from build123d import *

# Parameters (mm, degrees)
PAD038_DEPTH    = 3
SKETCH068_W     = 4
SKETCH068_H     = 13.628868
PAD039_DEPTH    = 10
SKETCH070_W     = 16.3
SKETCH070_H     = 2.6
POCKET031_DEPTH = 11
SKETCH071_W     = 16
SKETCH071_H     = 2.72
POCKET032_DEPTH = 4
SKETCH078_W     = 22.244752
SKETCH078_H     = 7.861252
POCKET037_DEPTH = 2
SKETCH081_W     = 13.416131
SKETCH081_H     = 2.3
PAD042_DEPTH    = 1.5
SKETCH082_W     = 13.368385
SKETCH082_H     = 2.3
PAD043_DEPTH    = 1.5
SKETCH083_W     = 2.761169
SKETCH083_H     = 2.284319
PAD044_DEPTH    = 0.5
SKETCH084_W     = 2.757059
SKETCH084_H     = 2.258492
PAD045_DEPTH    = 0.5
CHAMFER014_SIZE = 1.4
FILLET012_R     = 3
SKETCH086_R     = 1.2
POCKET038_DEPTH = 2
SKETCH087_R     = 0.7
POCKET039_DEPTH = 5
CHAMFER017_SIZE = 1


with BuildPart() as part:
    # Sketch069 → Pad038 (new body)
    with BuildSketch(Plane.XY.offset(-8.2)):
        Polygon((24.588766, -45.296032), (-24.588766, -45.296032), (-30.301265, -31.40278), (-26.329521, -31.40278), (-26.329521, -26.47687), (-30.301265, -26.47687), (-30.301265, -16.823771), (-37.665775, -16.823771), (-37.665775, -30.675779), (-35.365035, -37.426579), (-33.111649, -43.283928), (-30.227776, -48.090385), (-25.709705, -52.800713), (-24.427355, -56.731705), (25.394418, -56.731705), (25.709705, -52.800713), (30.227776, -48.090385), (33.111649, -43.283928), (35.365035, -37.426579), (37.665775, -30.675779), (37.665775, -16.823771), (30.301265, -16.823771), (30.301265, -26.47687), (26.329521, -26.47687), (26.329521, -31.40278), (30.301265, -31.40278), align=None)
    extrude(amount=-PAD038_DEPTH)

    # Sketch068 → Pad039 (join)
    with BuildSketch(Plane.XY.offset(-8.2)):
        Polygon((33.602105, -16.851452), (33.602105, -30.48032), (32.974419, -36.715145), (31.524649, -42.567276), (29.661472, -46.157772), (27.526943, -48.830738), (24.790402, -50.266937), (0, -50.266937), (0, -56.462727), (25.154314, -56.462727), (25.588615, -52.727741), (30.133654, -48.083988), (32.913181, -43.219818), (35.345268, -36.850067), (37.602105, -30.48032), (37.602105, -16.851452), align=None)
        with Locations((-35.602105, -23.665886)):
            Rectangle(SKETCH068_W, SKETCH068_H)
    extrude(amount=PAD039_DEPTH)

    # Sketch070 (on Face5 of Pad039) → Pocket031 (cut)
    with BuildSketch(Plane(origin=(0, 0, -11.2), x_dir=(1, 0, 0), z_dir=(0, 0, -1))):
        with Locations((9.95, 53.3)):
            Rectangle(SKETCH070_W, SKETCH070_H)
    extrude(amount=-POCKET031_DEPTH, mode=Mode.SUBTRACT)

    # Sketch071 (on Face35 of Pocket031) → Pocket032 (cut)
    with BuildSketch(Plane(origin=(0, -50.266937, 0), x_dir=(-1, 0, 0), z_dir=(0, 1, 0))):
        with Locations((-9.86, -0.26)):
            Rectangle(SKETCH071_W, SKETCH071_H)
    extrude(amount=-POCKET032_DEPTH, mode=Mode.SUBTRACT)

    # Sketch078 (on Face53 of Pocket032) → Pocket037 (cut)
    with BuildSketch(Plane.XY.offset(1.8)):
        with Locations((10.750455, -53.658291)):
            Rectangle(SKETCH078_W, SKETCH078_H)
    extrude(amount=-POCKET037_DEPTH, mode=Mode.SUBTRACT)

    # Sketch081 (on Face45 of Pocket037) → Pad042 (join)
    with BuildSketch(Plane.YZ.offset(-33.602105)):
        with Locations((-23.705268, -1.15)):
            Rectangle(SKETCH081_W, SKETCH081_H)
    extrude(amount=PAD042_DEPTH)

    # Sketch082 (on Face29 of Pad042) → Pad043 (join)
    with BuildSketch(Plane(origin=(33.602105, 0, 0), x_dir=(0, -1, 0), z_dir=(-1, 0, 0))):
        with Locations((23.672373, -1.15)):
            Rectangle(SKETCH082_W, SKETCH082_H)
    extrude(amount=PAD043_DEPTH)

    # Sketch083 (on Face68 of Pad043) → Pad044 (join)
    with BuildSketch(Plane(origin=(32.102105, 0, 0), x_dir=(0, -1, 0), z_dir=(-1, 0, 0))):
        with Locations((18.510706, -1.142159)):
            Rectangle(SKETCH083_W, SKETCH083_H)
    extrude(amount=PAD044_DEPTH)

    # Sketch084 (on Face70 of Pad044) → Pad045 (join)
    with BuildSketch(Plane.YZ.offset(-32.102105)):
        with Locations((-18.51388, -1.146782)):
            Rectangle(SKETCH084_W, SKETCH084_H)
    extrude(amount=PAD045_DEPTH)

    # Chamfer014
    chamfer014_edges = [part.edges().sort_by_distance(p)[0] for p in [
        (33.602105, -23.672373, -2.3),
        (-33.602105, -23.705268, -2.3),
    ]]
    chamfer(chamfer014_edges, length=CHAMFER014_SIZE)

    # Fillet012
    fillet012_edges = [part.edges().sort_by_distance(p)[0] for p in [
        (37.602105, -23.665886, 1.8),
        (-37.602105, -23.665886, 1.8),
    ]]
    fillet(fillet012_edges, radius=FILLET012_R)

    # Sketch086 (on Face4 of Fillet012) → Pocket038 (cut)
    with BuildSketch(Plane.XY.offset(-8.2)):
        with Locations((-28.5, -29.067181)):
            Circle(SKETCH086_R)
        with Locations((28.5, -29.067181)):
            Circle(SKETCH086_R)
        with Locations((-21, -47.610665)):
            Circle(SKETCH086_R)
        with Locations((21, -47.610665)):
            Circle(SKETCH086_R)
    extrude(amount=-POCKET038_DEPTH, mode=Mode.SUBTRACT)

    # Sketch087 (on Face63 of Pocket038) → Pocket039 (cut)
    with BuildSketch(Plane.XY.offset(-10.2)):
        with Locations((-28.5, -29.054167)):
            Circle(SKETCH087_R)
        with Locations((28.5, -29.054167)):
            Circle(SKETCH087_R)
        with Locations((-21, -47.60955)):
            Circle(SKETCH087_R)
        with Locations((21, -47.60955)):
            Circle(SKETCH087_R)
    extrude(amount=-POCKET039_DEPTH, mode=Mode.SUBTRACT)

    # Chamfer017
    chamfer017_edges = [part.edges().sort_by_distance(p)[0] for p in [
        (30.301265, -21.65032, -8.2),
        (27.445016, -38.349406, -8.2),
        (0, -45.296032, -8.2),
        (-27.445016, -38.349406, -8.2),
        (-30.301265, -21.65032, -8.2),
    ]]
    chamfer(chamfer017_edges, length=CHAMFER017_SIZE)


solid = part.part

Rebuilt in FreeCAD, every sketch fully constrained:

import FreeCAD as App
import Part
import Sketcher
Q = App.Units.Quantity


def edges_at(feature, points):
    """Names of the edges that pass closest to the given points."""
    edges = feature.Shape.Edges
    near = lambda p: min(range(len(edges)), key=lambda i: edges[i].distToShape(Part.Vertex(*p))[0])
    return sorted({f"Edge{near(p) + 1}" for p in points})


def add_polygon(sketch, points):
    """Adds a closed chain of lines whose ends are joined by coincident constraints."""
    first, n = sketch.GeometryCount, len(points)
    for a, b in zip(points, points[1:] + points[:1]):
        sketch.addGeometry(Part.LineSegment(App.Vector(*a, 0), App.Vector(*b, 0)), False)
    for i in range(n):
        sketch.addConstraint(Sketcher.Constraint("Coincident", first + i, 2, first + (i + 1) % n, 1))

doc = App.newDocument("Part")
params = doc.addObject("Spreadsheet::Sheet", "Params")
for row, (alias, value) in enumerate([
    ("pad1_length", "3 mm"),
    ("sketch2_width", "4 mm"),
    ("pad2_length", "10 mm"),
    ("sketch3_width", "16.3 mm"),
    ("sketch3_height", "2.6 mm"),
    ("pocket1_length", "11 mm"),
    ("sketch4_width", "16 mm"),
    ("sketch4_height", "2.72 mm"),
    ("pocket2_length", "4 mm"),
    ("pocket3_length", "2 mm"),
    ("sketch6_height", "2.3 mm"),
    ("pad3_length", "1.5 mm"),
    ("sketch7_height", "2.3 mm"),
    ("pad4_length", "1.5 mm"),
    ("pad5_length", "0.5 mm"),
    ("pad6_length", "0.5 mm"),
    ("chamfer_size", "1.4 mm"),
    ("fillet_radius", "3 mm"),
    ("sketch10_diameter", "2.4 mm"),
    ("pocket4_length", "2 mm"),
    ("sketch11_diameter", "1.4 mm"),
    ("pocket5_length", "5 mm"),
    ("chamfer2_size", "1 mm"),
], start=1):
    params.set(f"A{row}", alias)
    params.set(f"B{row}", "=" + value)
    params.setAlias(f"B{row}", alias)

body = doc.addObject("PartDesign::Body", "Body")

sketch1 = body.newObject("Sketcher::SketchObject", "Sketch")
sketch1.AttachmentSupport = (doc.getObject("XY_Plane"), [""])
sketch1.MapMode = "FlatFace"
sketch1.AttachmentOffset = App.Placement(App.Vector(0, 0, -8.2), App.Rotation())
add_polygon(sketch1, [(24.6, -45.3), (-24.6, -45.3), (-30.3, -31.4), (-26.3, -31.4), (-26.3, -26.5), (-30.3, -26.5), (-30.3, -16.8), (-37.7, -16.8), (-37.7, -30.7), (-35.4, -37.4), (-33.1, -43.3), (-30.2, -48.1), (-25.7, -52.8), (-24.4, -56.7), (25.4, -56.7), (25.7, -52.8), (30.2, -48.1), (33.1, -43.3), (35.4, -37.4), (37.7, -30.7), (37.7, -16.8), (30.3, -16.8), (30.3, -26.5), (26.3, -26.5), (26.3, -31.4), (30.3, -31.4)])
sketch1.addConstraint([
    Sketcher.Constraint("Horizontal", 0),
    Sketcher.Constraint("Horizontal", 2),
    Sketcher.Constraint("Vertical", 3),
    Sketcher.Constraint("Horizontal", 4),
    Sketcher.Constraint("Vertical", 5),
    Sketcher.Constraint("Horizontal", 6),
    Sketcher.Constraint("Vertical", 7),
    Sketcher.Constraint("Horizontal", 13),
    Sketcher.Constraint("Vertical", 19),
    Sketcher.Constraint("Horizontal", 20),
    Sketcher.Constraint("Vertical", 21),
    Sketcher.Constraint("Horizontal", 22),
    Sketcher.Constraint("Vertical", 23),
    Sketcher.Constraint("Horizontal", 24),
    Sketcher.Constraint("Symmetric", 11, 2, 14, 2, -2),
    Sketcher.Constraint("Symmetric", 10, 2, 15, 2, -2),
    Sketcher.Constraint("Symmetric", 9, 2, 16, 2, -2),
    Sketcher.Constraint("Symmetric", 8, 2, 17, 2, -2),
    Sketcher.Constraint("Symmetric", 7, 2, 18, 2, -2),
    Sketcher.Constraint("Symmetric", 5, 2, 20, 2, -2),
    Sketcher.Constraint("Symmetric", 3, 2, 22, 2, -2),
    Sketcher.Constraint("Symmetric", 1, 2, 24, 2, -2),
    Sketcher.Constraint("Vertical", 1, 2, 4, 2),
    Sketcher.Constraint("Equal", 1, 25),
    Sketcher.Constraint("DistanceY", 5, 1, 5, 2, Q("9.653099 mm")),
    Sketcher.Constraint("DistanceY", 1, 2, 7, 2, Q("0.727001 mm")),
    Sketcher.Constraint("DistanceX", 15, 2, 18, 2, Q("7.437999 mm")),
    Sketcher.Constraint("DistanceX", 6, 2, 6, 1, Q("7.36451 mm")),
    Sketcher.Constraint("DistanceY", 3, 1, 3, 2, Q("4.92591 mm")),
    Sketcher.Constraint("DistanceX", 1, 2, 0, 2, Q("5.712499 mm")),
    Sketcher.Constraint("DistanceY", 8, 2, 7, 2, Q("6.7508 mm")),
    Sketcher.Constraint("DistanceX", 0, 2, 17, 2, Q("59.953801 mm")),
    Sketcher.Constraint("Distance", 1, Q("15.021821 mm")),
    Sketcher.Constraint("Distance", 8, Q("7.13209 mm")),
    Sketcher.Constraint("Distance", 9, Q("6.275849 mm")),
    Sketcher.Constraint("Distance", 11, Q("6.526879 mm")),
    Sketcher.Constraint("DistanceX", 2, 1, 2, 2, Q("3.971744 mm")),
    Sketcher.Constraint("DistanceX", 13, 1, 13, 2, Q("49.821773 mm")),
    Sketcher.Constraint("DistanceY", 0, 2, -1, 1, Q("45.296032 mm")),
    Sketcher.Constraint("DistanceX", 9, 2, -1, 1, Q("33.111649 mm")),
    Sketcher.Constraint("DistanceX", -1, 1, 13, 2, Q("25.394418 mm")),
    Sketcher.Constraint("DistanceX", 10, 2, 11, 2, Q("4.518071 mm")),
    Sketcher.Constraint("DistanceY", 11, 2, 0, 2, Q("7.504681 mm")),
    Sketcher.Constraint("DistanceY", 12, 2, 11, 2, Q("3.930992 mm")),
])
pad1 = body.newObject("PartDesign::Pad", "Pad")
pad1.Profile = sketch1
pad1.setExpression("Length", "Params.pad1_length")
pad1.Reversed = True

sketch2 = body.newObject("Sketcher::SketchObject", "Sketch001")
sketch2.AttachmentSupport = (doc.getObject("XY_Plane"), [""])
sketch2.MapMode = "FlatFace"
sketch2.AttachmentOffset = App.Placement(App.Vector(0, 0, -8.2), App.Rotation())
add_polygon(sketch2, [(33.6, -16.9), (33.6, -30.5), (33, -36.7), (31.5, -42.6), (29.7, -46.2), (27.5, -48.8), (24.8, -50.3), (0, -50.3), (0, -56.5), (25.2, -56.5), (25.6, -52.7), (30.1, -48.1), (32.9, -43.2), (35.3, -36.9), (37.6, -30.5), (37.6, -16.9)])
add_polygon(sketch2, [(-37.6, -16.9), (-37.6, -30.5), (-33.6, -30.5), (-33.6, -16.9)])
sketch2.addConstraint([
    Sketcher.Constraint("Vertical", 0),
    Sketcher.Constraint("Horizontal", 6),
    Sketcher.Constraint("Vertical", 7),
    Sketcher.Constraint("Horizontal", 8),
    Sketcher.Constraint("Vertical", 14),
    Sketcher.Constraint("Horizontal", 15),
    Sketcher.Constraint("Vertical", 16),
    Sketcher.Constraint("Horizontal", 17),
    Sketcher.Constraint("Vertical", 18),
    Sketcher.Constraint("Horizontal", 19),
    Sketcher.Constraint("Symmetric", 13, 2, 16, 2, -2),
    Sketcher.Constraint("Symmetric", 0, 2, 17, 2, -2),
    Sketcher.Constraint("PointOnObject", 6, 2, -2),
    Sketcher.Constraint("Horizontal", 15, 2, 18, 2),
    Sketcher.Constraint("DistanceX", 15, 2, 15, 1, Q("4 mm")),
    Sketcher.Constraint("DistanceX", 6, 2, 6, 1, Q("24.790402 mm")),
    Sketcher.Constraint("DistanceY", 0, 2, 0, 1, Q("13.628868 mm")),
    Sketcher.Constraint("DistanceY", 7, 2, 7, 1, Q("6.19579 mm")),
    Sketcher.Constraint("DistanceY", 5, 2, 4, 2, Q("1.436199 mm")),
    Sketcher.Constraint("DistanceX", 8, 2, 9, 2, Q("0.434301 mm")),
    Sketcher.Constraint("Distance", 1, Q("6.266341 mm")),
    Sketcher.Constraint("Distance", 3, Q("4.045132 mm")),
    Sketcher.Constraint("Distance", 5, Q("3.090522 mm")),
    Sketcher.Constraint("Distance", 9, Q("3.760151 mm")),
    Sketcher.Constraint("DistanceX", 8, 1, 8, 2, Q("25.154314 mm")),
    Sketcher.Constraint("DistanceY", 0, 2, -1, 1, Q("30.48032 mm")),
    Sketcher.Constraint("DistanceX", -1, 1, 1, 2, Q("32.974419 mm")),
    Sketcher.Constraint("DistanceX", -1, 1, 2, 2, Q("31.524649 mm")),
    Sketcher.Constraint("DistanceX", -1, 1, 3, 2, Q("29.661472 mm")),
    Sketcher.Constraint("DistanceY", 9, 2, -1, 1, Q("52.727741 mm")),
    Sketcher.Constraint("DistanceX", -1, 1, 11, 2, Q("32.913181 mm")),
    Sketcher.Constraint("DistanceY", 2, 2, 1, 2, Q("5.852131 mm")),
    Sketcher.Constraint("DistanceY", 4, 2, 2, 2, Q("6.263462 mm")),
    Sketcher.Constraint("DistanceX", 4, 2, 10, 2, Q("2.606711 mm")),
    Sketcher.Constraint("DistanceY", 4, 2, 10, 2, Q("0.74675 mm")),
    Sketcher.Constraint("DistanceY", 11, 2, 2, 2, Q("0.652542 mm")),
    Sketcher.Constraint("DistanceX", 1, 2, 12, 2, Q("2.370849 mm")),
    Sketcher.Constraint("DistanceY", 11, 2, 12, 2, Q("6.369751 mm")),
])
sketch2.setExpression("Constraints[34]", "Params.sketch2_width")
pad2 = body.newObject("PartDesign::Pad", "Pad001")
pad2.Profile = sketch2
pad2.setExpression("Length", "Params.pad2_length")

sketch3 = body.newObject("Sketcher::SketchObject", "Sketch002")
sketch3.AttachmentSupport = (doc.getObject("XY_Plane"), [""])
sketch3.MapMode = "FlatFace"
sketch3.AttachmentOffset = App.Placement(App.Vector(0, 0, -11.2), App.Rotation())
add_polygon(sketch3, [(1.8, -54.6), (1.8, -52), (18.1, -52), (18.1, -54.6)])
sketch3.addConstraint([
    Sketcher.Constraint("Vertical", 0),
    Sketcher.Constraint("Horizontal", 1),
    Sketcher.Constraint("Vertical", 2),
    Sketcher.Constraint("Horizontal", 3),
    Sketcher.Constraint("DistanceX", 1, 1, 1, 2, Q("16.3 mm")),
    Sketcher.Constraint("DistanceY", 0, 1, 0, 2, Q("2.6 mm")),
    Sketcher.Constraint("DistanceY", 0, 2, -1, 1, Q("52 mm")),
    Sketcher.Constraint("DistanceX", -1, 1, 0, 2, Q("1.8 mm")),
])
sketch3.setExpression("Constraints[8]", "Params.sketch3_width")
sketch3.setExpression("Constraints[9]", "Params.sketch3_height")
pocket1 = body.newObject("PartDesign::Pocket", "Pocket")
pocket1.Profile = sketch3
pocket1.setExpression("Length", "Params.pocket1_length")
pocket1.Reversed = True

sketch4 = body.newObject("Sketcher::SketchObject", "Sketch003")
sketch4.AttachmentSupport = (doc.getObject("XZ_Plane"), [""])
sketch4.MapMode = "FlatFace"
sketch4.AttachmentOffset = App.Placement(App.Vector(0, 0, 50.266937), App.Rotation())
add_polygon(sketch4, [(17.9, 1.1), (17.9, -1.6), (1.9, -1.6), (1.9, 1.1)])
sketch4.addConstraint([
    Sketcher.Constraint("Vertical", 0),
    Sketcher.Constraint("Horizontal", 1),
    Sketcher.Constraint("Vertical", 2),
    Sketcher.Constraint("Horizontal", 3),
    Sketcher.Constraint("DistanceX", 1, 2, 1, 1, Q("16 mm")),
    Sketcher.Constraint("DistanceY", 0, 2, 0, 1, Q("2.72 mm")),
    Sketcher.Constraint("DistanceY", -1, 1, 2, 2, Q("1.1 mm")),
    Sketcher.Constraint("DistanceX", -1, 1, 0, 2, Q("17.86 mm")),
])
sketch4.setExpression("Constraints[8]", "Params.sketch4_width")
sketch4.setExpression("Constraints[9]", "Params.sketch4_height")
pocket2 = body.newObject("PartDesign::Pocket", "Pocket001")
pocket2.Profile = sketch4
pocket2.setExpression("Length", "Params.pocket2_length")
pocket2.Reversed = True

sketch5 = body.newObject("Sketcher::SketchObject", "Sketch004")
sketch5.AttachmentSupport = (doc.getObject("XY_Plane"), [""])
sketch5.MapMode = "FlatFace"
sketch5.AttachmentOffset = App.Placement(App.Vector(0, 0, 1.8), App.Rotation())
add_polygon(sketch5, [(0, -50), (0, -58), (22, -58), (22, -50)])
sketch5.addConstraint([
    Sketcher.Constraint("Vertical", 0),
    Sketcher.Constraint("Horizontal", 1),
    Sketcher.Constraint("Vertical", 2),
    Sketcher.Constraint("Horizontal", 3),
    Sketcher.Constraint("DistanceX", 1, 1, 1, 2, Q("22.244752 mm")),
    Sketcher.Constraint("DistanceY", 0, 2, 0, 1, Q("7.861252 mm")),
    Sketcher.Constraint("DistanceX", 0, 2, -1, 1, Q("0.371921 mm")),
    Sketcher.Constraint("DistanceY", 0, 2, -1, 1, Q("57.588917 mm")),
])
pocket3 = body.newObject("PartDesign::Pocket", "Pocket002")
pocket3.Profile = sketch5
pocket3.setExpression("Length", "Params.pocket3_length")

sketch6 = body.newObject("Sketcher::SketchObject", "Sketch005")
sketch6.AttachmentSupport = (doc.getObject("YZ_Plane"), [""])
sketch6.MapMode = "FlatFace"
sketch6.AttachmentOffset = App.Placement(App.Vector(0, 0, -33.602105), App.Rotation())
add_polygon(sketch6, [(-30.4, 0), (-30.4, -2.3), (-17, -2.3), (-17, 0)])
sketch6.addConstraint([
    Sketcher.Constraint("Vertical", 0),
    Sketcher.Constraint("Horizontal", 1),
    Sketcher.Constraint("Vertical", 2),
    Sketcher.Constraint("Horizontal", 3),
    Sketcher.Constraint("PointOnObject", 2, 2, -1),
    Sketcher.Constraint("DistanceY", 0, 2, 0, 1, Q("2.3 mm")),
    Sketcher.Constraint("DistanceX", 1, 1, 1, 2, Q("13.416131 mm")),
    Sketcher.Constraint("DistanceX", 0, 2, -1, 1, Q("30.413334 mm")),
])
sketch6.setExpression("Constraints[9]", "Params.sketch6_height")
pad3 = body.newObject("PartDesign::Pad", "Pad002")
pad3.Profile = sketch6
pad3.setExpression("Length", "Params.pad3_length")

sketch7 = body.newObject("Sketcher::SketchObject", "Sketch006")
sketch7.AttachmentSupport = (doc.getObject("YZ_Plane"), [""])
sketch7.MapMode = "FlatFace"
sketch7.AttachmentOffset = App.Placement(App.Vector(0, 0, 33.602105), App.Rotation())
add_polygon(sketch7, [(-17, 0), (-17, -2.3), (-30.4, -2.3), (-30.4, 0)])
sketch7.addConstraint([
    Sketcher.Constraint("Vertical", 0),
    Sketcher.Constraint("Horizontal", 1),
    Sketcher.Constraint("Vertical", 2),
    Sketcher.Constraint("Horizontal", 3),
    Sketcher.Constraint("PointOnObject", 2, 2, -1),
    Sketcher.Constraint("DistanceY", 0, 2, 0, 1, Q("2.3 mm")),
    Sketcher.Constraint("DistanceX", 1, 2, 1, 1, Q("13.368385 mm")),
    Sketcher.Constraint("DistanceX", 0, 2, -1, 1, Q("16.98818 mm")),
])
sketch7.setExpression("Constraints[9]", "Params.sketch7_height")
pad4 = body.newObject("PartDesign::Pad", "Pad003")
pad4.Profile = sketch7
pad4.setExpression("Length", "Params.pad4_length")
pad4.Reversed = True

sketch8 = body.newObject("Sketcher::SketchObject", "Sketch007")
sketch8.AttachmentSupport = (doc.getObject("YZ_Plane"), [""])
sketch8.MapMode = "FlatFace"
sketch8.AttachmentOffset = App.Placement(App.Vector(0, 0, 32.102105), App.Rotation())
add_polygon(sketch8, [(-17.1, 0), (-17.1, -2.3), (-19.9, -2.3), (-19.9, 0)])
sketch8.addConstraint([
    Sketcher.Constraint("Vertical", 0),
    Sketcher.Constraint("Horizontal", 1),
    Sketcher.Constraint("Vertical", 2),
    Sketcher.Constraint("Horizontal", 3),
    Sketcher.Constraint("PointOnObject", 2, 2, -1),
    Sketcher.Constraint("DistanceX", 1, 2, 1, 1, Q("2.761169 mm")),
    Sketcher.Constraint("DistanceY", 0, 2, 0, 1, Q("2.284319 mm")),
    Sketcher.Constraint("DistanceX", 0, 2, -1, 1, Q("17.130122 mm")),
])
pad5 = body.newObject("PartDesign::Pad", "Pad004")
pad5.Profile = sketch8
pad5.setExpression("Length", "Params.pad5_length")
pad5.Reversed = True

sketch9 = body.newObject("Sketcher::SketchObject", "Sketch008")
sketch9.AttachmentSupport = (doc.getObject("YZ_Plane"), [""])
sketch9.MapMode = "FlatFace"
sketch9.AttachmentOffset = App.Placement(App.Vector(0, 0, -32.102105), App.Rotation())
add_polygon(sketch9, [(-19.9, 0), (-19.9, -2.3), (-17.1, -2.3), (-17.1, 0)])
sketch9.addConstraint([
    Sketcher.Constraint("Vertical", 0),
    Sketcher.Constraint("Horizontal", 1),
    Sketcher.Constraint("Vertical", 2),
    Sketcher.Constraint("Horizontal", 3),
    Sketcher.Constraint("DistanceX", 1, 1, 1, 2, Q("2.757059 mm")),
    Sketcher.Constraint("DistanceY", 0, 2, 0, 1, Q("2.258492 mm")),
    Sketcher.Constraint("DistanceX", 0, 2, -1, 1, Q("19.892409 mm")),
    Sketcher.Constraint("DistanceY", 0, 2, -1, 1, Q("2.276028 mm")),
])
pad6 = body.newObject("PartDesign::Pad", "Pad005")
pad6.Profile = sketch9
pad6.setExpression("Length", "Params.pad6_length")
doc.recompute()

chamfer = body.newObject("PartDesign::Chamfer", "Chamfer")
chamfer.Base = (pad6, edges_at(pad6, [(33.602, -23.672, -2.3), (-33.602, -23.705, -2.3)]))
chamfer.setExpression("Size", "Params.chamfer_size")
doc.recompute()

fillet = body.newObject("PartDesign::Fillet", "Fillet")
fillet.Base = (chamfer, edges_at(chamfer, [(37.602, -23.666, 1.8), (-37.602, -23.666, 1.8)]))
fillet.setExpression("Radius", "Params.fillet_radius")

sketch10 = body.newObject("Sketcher::SketchObject", "Sketch009")
sketch10.AttachmentSupport = (doc.getObject("XY_Plane"), [""])
sketch10.MapMode = "FlatFace"
sketch10.AttachmentOffset = App.Placement(App.Vector(0, 0, -8.2), App.Rotation())
sketch10.addGeometry([
    Part.Circle(App.Vector(-28.5, -29.1, 0), App.Vector(0, 0, 1), 1.2),
    Part.Circle(App.Vector(28.5, -29.1, 0), App.Vector(0, 0, 1), 1.2),
    Part.Circle(App.Vector(-21, -47.6, 0), App.Vector(0, 0, 1), 1.2),
    Part.Circle(App.Vector(21, -47.6, 0), App.Vector(0, 0, 1), 1.2),
], False)
sketch10.addConstraint([
    Sketcher.Constraint("Equal", 0, 1),
    Sketcher.Constraint("Equal", 1, 2),
    Sketcher.Constraint("Equal", 2, 3),
    Sketcher.Constraint("Symmetric", 0, 3, 1, 3, -2),
    Sketcher.Constraint("Symmetric", 2, 3, 3, 3, -2),
    Sketcher.Constraint("Diameter", 0, Q("2.4 mm")),
    Sketcher.Constraint("DistanceX", 2, 3, -1, 1, Q("21 mm")),
    Sketcher.Constraint("DistanceX", 0, 3, 1, 3, Q("57 mm")),
    Sketcher.Constraint("DistanceY", 0, 3, -1, 1, Q("29.067181 mm")),
    Sketcher.Constraint("DistanceY", 2, 3, -1, 1, Q("47.610665 mm")),
])
sketch10.setExpression("Constraints[5]", "Params.sketch10_diameter")
pocket4 = body.newObject("PartDesign::Pocket", "Pocket003")
pocket4.Profile = sketch10
pocket4.setExpression("Length", "Params.pocket4_length")

sketch11 = body.newObject("Sketcher::SketchObject", "Sketch010")
sketch11.AttachmentSupport = (doc.getObject("XY_Plane"), [""])
sketch11.MapMode = "FlatFace"
sketch11.AttachmentOffset = App.Placement(App.Vector(0, 0, -10.2), App.Rotation())
sketch11.addGeometry([
    Part.Circle(App.Vector(-28.5, -29.1, 0), App.Vector(0, 0, 1), 0.7),
    Part.Circle(App.Vector(28.5, -29.1, 0), App.Vector(0, 0, 1), 0.7),
    Part.Circle(App.Vector(-21, -47.6, 0), App.Vector(0, 0, 1), 0.7),
    Part.Circle(App.Vector(21, -47.6, 0), App.Vector(0, 0, 1), 0.7),
], False)
sketch11.addConstraint([
    Sketcher.Constraint("Equal", 0, 1),
    Sketcher.Constraint("Equal", 1, 2),
    Sketcher.Constraint("Equal", 2, 3),
    Sketcher.Constraint("Symmetric", 0, 3, 1, 3, -2),
    Sketcher.Constraint("Symmetric", 2, 3, 3, 3, -2),
    Sketcher.Constraint("Diameter", 0, Q("1.4 mm")),
    Sketcher.Constraint("DistanceX", 2, 3, -1, 1, Q("21 mm")),
    Sketcher.Constraint("DistanceX", 0, 3, 1, 3, Q("57 mm")),
    Sketcher.Constraint("DistanceY", 2, 3, -1, 1, Q("47.60955 mm")),
    Sketcher.Constraint("DistanceY", 0, 3, -1, 1, Q("29.054167 mm")),
])
sketch11.setExpression("Constraints[5]", "Params.sketch11_diameter")
pocket5 = body.newObject("PartDesign::Pocket", "Pocket004")
pocket5.Profile = sketch11
pocket5.setExpression("Length", "Params.pocket5_length")
doc.recompute()

chamfer2 = body.newObject("PartDesign::Chamfer", "Chamfer001")
chamfer2.Base = (pocket5, edges_at(pocket5, [
    (30.301, -21.65, -8.2),
    (27.445, -38.349, -8.2),
    (0, -45.296, -8.2),
    (-27.445, -38.349, -8.2),
    (-30.301, -21.65, -8.2),
]))
chamfer2.setExpression("Size", "Params.chamfer2_size")

doc.recompute()
